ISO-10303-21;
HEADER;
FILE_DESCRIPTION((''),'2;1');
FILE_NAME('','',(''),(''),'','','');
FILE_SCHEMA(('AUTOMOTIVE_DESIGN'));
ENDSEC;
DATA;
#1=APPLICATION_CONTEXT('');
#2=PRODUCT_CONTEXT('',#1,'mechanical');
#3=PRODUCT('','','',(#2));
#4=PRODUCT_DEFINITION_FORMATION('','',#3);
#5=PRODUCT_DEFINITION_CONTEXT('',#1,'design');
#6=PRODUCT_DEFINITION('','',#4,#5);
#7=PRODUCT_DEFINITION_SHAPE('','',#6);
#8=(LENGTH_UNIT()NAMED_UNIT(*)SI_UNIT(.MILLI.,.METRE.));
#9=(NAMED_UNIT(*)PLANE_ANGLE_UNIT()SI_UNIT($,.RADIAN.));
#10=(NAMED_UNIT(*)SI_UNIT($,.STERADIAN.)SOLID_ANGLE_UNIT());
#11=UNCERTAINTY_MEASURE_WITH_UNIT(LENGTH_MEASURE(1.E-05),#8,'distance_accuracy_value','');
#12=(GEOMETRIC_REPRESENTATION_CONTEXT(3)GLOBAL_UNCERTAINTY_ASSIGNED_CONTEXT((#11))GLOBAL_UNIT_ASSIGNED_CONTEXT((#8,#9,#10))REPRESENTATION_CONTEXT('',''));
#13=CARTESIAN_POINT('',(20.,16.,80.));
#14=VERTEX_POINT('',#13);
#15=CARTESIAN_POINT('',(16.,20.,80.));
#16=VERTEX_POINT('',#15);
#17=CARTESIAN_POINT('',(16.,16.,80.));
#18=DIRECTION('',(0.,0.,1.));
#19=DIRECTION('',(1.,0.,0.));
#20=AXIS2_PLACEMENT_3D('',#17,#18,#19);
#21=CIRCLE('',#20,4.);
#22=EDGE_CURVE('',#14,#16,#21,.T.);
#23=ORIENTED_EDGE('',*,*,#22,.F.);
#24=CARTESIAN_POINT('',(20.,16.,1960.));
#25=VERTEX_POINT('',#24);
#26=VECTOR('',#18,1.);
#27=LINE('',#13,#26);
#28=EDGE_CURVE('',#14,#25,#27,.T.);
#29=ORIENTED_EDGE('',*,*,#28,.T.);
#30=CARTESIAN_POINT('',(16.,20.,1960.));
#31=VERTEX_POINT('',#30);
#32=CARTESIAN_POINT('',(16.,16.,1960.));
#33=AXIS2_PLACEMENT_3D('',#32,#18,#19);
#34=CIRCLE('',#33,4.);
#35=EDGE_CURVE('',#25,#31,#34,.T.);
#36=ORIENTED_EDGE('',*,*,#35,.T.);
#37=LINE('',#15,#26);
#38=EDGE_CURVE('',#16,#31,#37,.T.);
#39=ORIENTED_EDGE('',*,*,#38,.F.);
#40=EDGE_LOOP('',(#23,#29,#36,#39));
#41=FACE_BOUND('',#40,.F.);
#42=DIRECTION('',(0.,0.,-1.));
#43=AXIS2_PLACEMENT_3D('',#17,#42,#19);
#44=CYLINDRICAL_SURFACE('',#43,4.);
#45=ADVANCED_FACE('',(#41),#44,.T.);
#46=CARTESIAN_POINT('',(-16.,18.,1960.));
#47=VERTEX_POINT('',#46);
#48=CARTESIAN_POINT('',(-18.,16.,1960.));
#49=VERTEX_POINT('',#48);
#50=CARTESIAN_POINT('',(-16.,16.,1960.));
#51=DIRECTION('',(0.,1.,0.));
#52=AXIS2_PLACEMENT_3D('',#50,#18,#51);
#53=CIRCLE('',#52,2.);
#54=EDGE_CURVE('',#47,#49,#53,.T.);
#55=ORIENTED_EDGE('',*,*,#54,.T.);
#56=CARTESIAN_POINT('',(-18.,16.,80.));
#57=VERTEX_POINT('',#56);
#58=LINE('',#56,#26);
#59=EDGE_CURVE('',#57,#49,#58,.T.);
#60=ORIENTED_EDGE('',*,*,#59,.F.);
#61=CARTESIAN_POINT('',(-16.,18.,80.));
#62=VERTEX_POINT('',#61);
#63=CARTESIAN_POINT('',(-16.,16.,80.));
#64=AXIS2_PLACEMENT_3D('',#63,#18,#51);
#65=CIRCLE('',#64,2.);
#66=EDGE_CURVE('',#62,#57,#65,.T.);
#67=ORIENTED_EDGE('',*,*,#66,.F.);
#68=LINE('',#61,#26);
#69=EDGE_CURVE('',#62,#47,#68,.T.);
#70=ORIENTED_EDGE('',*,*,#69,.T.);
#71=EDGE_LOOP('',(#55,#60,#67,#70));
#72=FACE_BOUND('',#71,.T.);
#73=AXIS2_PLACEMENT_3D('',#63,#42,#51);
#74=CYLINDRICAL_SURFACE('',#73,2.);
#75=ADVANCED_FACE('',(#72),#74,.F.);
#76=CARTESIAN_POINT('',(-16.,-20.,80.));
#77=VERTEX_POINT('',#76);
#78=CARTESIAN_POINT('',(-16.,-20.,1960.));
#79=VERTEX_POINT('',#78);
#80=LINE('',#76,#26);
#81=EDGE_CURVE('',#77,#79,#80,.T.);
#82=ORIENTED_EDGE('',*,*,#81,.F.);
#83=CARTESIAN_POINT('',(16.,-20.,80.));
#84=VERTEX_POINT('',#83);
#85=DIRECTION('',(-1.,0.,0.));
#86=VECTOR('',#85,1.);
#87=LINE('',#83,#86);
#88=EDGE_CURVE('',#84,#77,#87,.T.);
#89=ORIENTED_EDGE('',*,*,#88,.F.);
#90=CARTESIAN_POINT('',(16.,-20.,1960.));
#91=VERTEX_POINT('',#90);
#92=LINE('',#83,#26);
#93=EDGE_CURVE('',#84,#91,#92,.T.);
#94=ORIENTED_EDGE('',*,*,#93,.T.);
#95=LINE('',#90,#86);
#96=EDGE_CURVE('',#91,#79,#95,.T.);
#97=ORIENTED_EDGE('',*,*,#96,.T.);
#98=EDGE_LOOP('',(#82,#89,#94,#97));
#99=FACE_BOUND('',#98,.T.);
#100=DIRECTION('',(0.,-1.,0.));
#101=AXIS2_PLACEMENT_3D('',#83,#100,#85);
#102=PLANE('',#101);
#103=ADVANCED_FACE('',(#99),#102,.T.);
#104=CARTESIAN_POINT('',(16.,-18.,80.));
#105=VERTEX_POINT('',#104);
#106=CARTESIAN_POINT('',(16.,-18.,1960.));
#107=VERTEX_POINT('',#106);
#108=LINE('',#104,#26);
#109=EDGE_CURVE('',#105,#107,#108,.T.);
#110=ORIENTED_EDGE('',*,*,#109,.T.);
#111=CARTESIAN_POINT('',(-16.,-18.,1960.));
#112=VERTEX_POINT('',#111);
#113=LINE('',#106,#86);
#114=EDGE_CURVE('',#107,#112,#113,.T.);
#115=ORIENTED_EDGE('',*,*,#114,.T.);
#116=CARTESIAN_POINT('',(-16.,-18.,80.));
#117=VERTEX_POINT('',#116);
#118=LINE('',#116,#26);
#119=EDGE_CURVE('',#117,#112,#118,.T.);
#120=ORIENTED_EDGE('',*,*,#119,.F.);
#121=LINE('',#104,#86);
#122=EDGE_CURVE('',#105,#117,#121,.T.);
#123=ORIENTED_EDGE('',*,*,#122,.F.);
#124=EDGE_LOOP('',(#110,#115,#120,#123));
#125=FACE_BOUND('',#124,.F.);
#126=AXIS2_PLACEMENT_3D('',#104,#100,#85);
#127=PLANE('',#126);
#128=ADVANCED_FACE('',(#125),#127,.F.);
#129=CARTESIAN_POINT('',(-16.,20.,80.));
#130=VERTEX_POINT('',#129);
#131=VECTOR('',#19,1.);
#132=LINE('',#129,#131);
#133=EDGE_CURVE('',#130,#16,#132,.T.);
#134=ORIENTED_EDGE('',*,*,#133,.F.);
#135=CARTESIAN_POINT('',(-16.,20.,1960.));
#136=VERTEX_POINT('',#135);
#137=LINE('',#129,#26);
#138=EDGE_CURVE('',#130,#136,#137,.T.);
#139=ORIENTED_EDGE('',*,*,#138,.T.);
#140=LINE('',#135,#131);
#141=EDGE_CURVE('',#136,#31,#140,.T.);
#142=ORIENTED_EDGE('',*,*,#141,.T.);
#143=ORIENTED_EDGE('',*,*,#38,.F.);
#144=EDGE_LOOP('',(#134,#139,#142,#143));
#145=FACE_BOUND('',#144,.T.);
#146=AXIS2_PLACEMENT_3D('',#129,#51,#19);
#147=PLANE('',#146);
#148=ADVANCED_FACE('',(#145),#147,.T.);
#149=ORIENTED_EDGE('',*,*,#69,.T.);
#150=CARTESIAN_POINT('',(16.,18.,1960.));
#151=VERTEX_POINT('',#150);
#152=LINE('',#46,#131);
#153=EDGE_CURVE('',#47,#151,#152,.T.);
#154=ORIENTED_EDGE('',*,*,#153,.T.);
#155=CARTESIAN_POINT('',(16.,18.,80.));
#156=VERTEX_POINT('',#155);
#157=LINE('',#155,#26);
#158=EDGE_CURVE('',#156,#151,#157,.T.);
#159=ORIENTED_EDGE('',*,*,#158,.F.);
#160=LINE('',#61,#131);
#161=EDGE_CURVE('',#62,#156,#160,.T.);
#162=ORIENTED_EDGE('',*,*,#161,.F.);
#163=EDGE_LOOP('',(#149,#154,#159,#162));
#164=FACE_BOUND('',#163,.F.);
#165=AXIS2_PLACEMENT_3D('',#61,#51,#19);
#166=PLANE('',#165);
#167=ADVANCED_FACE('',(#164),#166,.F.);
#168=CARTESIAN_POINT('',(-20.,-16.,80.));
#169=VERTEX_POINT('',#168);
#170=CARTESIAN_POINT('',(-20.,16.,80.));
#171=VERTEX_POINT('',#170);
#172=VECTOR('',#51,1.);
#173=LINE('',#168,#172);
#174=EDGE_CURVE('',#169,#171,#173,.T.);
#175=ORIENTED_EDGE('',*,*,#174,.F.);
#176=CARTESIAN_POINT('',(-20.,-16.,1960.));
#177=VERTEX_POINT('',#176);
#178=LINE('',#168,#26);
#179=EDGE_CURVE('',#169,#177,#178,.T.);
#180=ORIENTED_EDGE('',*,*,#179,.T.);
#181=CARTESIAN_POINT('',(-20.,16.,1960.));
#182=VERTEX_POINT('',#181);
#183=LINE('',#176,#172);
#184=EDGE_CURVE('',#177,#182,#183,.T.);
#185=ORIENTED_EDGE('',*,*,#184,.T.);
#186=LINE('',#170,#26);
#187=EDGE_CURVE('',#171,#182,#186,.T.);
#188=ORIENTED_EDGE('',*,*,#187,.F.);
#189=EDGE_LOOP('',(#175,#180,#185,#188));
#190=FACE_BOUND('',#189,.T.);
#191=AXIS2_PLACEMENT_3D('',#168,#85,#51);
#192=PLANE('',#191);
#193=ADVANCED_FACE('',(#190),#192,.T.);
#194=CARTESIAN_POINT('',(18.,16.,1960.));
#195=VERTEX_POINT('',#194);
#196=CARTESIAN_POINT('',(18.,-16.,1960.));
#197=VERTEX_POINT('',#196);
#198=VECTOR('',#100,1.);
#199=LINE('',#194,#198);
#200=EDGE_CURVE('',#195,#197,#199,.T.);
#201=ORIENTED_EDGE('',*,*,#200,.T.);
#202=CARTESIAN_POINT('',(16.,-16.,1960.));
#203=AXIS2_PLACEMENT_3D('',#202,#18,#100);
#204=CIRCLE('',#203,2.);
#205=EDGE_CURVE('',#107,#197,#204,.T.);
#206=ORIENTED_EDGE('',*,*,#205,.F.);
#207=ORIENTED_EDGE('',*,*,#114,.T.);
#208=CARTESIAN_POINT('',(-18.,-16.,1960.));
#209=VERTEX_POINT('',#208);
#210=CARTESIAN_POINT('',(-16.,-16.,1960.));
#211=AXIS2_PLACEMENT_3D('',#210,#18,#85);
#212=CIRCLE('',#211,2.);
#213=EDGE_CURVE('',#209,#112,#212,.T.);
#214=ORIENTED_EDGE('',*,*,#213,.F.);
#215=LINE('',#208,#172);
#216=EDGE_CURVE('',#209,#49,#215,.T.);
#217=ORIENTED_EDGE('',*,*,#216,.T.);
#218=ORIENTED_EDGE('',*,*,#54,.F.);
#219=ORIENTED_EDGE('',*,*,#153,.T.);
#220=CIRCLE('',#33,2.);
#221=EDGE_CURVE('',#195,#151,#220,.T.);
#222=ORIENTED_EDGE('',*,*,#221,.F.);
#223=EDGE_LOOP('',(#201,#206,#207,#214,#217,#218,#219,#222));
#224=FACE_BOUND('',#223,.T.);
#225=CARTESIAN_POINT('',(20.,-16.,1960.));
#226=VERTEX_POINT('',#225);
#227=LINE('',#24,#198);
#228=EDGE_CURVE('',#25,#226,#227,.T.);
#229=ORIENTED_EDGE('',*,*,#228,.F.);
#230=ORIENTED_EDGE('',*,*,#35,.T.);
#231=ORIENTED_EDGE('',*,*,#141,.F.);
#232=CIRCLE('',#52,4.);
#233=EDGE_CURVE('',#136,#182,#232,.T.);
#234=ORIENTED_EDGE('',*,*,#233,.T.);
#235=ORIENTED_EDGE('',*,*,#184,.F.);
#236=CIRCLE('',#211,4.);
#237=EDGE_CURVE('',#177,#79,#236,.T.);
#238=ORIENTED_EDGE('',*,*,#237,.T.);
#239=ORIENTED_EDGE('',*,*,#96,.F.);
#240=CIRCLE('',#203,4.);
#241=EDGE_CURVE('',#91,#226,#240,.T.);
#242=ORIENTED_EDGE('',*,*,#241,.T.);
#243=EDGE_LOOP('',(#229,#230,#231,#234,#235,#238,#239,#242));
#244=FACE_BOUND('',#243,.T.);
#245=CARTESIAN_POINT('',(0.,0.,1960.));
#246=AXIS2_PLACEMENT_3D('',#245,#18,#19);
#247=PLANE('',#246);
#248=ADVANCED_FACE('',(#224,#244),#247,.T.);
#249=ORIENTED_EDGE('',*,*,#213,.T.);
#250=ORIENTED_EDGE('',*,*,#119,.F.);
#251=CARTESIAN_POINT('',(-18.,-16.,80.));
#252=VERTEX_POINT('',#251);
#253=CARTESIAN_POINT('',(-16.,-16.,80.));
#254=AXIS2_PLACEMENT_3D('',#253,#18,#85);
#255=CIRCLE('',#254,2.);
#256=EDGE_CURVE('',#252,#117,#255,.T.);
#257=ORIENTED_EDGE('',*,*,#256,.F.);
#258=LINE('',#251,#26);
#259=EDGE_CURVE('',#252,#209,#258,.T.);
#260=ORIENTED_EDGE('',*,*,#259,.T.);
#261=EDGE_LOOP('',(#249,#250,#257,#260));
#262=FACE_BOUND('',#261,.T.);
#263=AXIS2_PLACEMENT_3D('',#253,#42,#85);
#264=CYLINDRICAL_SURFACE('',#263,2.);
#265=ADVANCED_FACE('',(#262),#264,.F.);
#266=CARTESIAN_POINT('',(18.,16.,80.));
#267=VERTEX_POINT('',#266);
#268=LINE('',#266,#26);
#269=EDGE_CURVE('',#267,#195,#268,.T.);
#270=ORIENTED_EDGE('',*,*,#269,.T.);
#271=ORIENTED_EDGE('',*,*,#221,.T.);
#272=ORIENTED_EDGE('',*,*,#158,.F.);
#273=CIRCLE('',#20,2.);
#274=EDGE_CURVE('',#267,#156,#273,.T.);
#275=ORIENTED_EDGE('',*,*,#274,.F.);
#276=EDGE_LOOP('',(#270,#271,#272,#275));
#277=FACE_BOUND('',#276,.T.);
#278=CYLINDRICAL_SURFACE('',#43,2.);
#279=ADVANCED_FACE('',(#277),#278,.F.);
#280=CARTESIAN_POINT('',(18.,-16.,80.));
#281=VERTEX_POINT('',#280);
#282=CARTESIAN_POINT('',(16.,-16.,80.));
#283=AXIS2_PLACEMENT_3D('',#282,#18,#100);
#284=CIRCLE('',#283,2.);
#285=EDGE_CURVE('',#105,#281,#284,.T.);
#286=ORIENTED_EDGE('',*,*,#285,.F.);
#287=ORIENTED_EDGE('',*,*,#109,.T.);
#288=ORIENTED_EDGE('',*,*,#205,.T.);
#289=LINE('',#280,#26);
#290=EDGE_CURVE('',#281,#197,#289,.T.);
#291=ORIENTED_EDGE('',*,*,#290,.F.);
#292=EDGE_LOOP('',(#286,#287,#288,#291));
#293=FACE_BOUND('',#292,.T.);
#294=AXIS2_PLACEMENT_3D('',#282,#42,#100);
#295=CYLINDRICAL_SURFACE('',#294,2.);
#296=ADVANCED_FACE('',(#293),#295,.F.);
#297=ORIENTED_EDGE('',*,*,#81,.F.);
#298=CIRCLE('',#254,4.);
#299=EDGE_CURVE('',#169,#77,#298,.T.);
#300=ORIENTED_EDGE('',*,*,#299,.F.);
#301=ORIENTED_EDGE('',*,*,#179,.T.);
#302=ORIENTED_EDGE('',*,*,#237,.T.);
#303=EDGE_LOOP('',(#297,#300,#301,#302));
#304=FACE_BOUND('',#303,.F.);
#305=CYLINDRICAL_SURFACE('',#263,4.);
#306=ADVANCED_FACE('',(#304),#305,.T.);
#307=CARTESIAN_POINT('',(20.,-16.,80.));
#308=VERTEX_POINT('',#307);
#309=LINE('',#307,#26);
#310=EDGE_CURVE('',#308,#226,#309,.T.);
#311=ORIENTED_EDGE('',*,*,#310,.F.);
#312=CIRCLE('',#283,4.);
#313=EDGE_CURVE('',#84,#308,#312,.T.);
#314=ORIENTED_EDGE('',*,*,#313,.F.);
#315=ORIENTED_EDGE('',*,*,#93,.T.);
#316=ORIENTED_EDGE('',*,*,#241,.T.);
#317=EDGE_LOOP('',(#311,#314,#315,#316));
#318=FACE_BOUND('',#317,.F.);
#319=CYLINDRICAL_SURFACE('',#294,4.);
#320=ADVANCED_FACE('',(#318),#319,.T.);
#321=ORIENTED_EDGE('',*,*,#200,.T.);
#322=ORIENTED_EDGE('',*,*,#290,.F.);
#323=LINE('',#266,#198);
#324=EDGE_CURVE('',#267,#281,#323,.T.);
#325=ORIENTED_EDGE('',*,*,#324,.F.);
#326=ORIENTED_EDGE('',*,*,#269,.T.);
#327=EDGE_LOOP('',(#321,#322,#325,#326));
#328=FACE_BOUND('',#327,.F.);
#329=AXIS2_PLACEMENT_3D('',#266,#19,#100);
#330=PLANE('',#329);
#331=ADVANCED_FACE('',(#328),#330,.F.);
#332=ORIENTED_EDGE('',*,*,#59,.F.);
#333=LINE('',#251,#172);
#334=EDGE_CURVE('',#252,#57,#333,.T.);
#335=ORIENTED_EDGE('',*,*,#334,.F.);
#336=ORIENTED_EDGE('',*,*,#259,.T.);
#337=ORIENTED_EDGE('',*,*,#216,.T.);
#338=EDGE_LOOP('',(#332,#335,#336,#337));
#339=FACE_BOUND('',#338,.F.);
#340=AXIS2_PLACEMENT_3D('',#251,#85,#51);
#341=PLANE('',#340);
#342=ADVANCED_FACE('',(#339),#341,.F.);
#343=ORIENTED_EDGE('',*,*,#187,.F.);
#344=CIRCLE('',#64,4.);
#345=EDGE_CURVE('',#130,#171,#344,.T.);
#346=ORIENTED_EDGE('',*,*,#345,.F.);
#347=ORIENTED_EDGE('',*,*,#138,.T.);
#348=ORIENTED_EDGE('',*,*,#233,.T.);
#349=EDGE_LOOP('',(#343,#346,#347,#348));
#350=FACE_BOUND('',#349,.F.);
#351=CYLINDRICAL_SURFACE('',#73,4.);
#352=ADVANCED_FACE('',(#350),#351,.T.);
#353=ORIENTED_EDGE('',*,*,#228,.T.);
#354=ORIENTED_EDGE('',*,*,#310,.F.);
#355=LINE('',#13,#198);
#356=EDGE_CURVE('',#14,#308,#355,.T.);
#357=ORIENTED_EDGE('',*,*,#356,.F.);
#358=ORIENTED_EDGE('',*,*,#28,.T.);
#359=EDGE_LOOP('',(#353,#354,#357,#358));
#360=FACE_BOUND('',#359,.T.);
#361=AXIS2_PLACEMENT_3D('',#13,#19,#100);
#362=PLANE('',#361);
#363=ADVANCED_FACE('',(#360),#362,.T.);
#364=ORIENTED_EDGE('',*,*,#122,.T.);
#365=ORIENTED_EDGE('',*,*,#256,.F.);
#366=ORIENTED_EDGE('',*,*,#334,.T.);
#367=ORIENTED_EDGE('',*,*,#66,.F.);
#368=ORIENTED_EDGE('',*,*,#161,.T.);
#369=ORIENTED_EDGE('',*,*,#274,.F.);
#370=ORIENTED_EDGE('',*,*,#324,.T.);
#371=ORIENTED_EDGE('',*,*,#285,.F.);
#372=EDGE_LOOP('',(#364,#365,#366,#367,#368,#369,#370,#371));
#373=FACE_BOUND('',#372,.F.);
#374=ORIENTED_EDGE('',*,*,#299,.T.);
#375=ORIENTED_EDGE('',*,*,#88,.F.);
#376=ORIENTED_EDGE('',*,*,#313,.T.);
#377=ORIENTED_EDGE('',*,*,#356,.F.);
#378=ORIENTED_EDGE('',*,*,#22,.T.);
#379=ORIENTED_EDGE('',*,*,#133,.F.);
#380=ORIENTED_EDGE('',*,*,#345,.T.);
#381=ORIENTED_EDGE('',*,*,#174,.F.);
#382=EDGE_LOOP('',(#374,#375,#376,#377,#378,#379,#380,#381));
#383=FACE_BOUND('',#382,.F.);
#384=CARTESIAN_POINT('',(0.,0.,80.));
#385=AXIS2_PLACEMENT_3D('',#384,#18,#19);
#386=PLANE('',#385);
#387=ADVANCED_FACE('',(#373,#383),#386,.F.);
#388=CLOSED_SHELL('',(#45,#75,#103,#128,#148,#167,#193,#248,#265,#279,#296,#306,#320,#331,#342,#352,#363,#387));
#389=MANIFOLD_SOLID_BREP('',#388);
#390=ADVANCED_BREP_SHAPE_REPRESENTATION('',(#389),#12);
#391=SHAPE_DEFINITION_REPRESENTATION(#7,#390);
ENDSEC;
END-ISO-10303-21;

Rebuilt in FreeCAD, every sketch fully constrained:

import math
import FreeCAD as App
import Part
import Sketcher

doc = App.newDocument("Part")
body = doc.addObject("PartDesign::Body", "Body")

# Sketch on XY plane
sketch1 = body.newObject("Sketcher::SketchObject", "Sketch")
sketch1.AttachmentSupport = (doc.getObject("XY_Plane"), [""])
sketch1.MapMode = "FlatFace"
sketch1.AttachmentOffset = App.Placement(App.Vector(0, 0, 80), App.Rotation())
sketch1.addGeometry(Part.LineSegment(App.Vector(-20, 16, 0), App.Vector(-20, -16, 0)), False)
sketch1.addGeometry(Part.ArcOfCircle(Part.Circle(App.Vector(-16, -16, 0), App.Vector(0, 0, 1), 4), math.radians(180), math.radians(270)), False)
sketch1.addGeometry(Part.LineSegment(App.Vector(-16, -20, 0), App.Vector(16, -20, 0)), False)
sketch1.addGeometry(Part.ArcOfCircle(Part.Circle(App.Vector(16, -16, 0), App.Vector(0, 0, 1), 4), math.radians(-90), math.radians(0)), False)
sketch1.addGeometry(Part.LineSegment(App.Vector(20, -16, 0), App.Vector(20, 16, 0)), False)
sketch1.addGeometry(Part.ArcOfCircle(Part.Circle(App.Vector(16, 16, 0), App.Vector(0, 0, 1), 4), math.radians(0), math.radians(90)), False)
sketch1.addGeometry(Part.LineSegment(App.Vector(16, 20, 0), App.Vector(-16, 20, 0)), False)
sketch1.addGeometry(Part.ArcOfCircle(Part.Circle(App.Vector(-16, 16, 0), App.Vector(0, 0, 1), 4), math.radians(90), math.radians(180)), False)
sketch1.addGeometry(Part.ArcOfCircle(Part.Circle(App.Vector(-16, 16, 0), App.Vector(0, 0, 1), 2), math.radians(90), math.radians(180)), False)
sketch1.addGeometry(Part.LineSegment(App.Vector(-16, 18, 0), App.Vector(16, 18, 0)), False)
sketch1.addGeometry(Part.ArcOfCircle(Part.Circle(App.Vector(16, 16, 0), App.Vector(0, 0, 1), 2), math.radians(0), math.radians(90)), False)
sketch1.addGeometry(Part.LineSegment(App.Vector(18, 16, 0), App.Vector(18, -16, 0)), False)
sketch1.addGeometry(Part.ArcOfCircle(Part.Circle(App.Vector(16, -16, 0), App.Vector(0, 0, 1), 2), math.radians(-90), math.radians(0)), False)
sketch1.addGeometry(Part.LineSegment(App.Vector(16, -18, 0), App.Vector(-16, -18, 0)), False)
sketch1.addGeometry(Part.ArcOfCircle(Part.Circle(App.Vector(-16, -16, 0), App.Vector(0, 0, 1), 2), math.radians(180), math.radians(270)), False)
sketch1.addGeometry(Part.LineSegment(App.Vector(-18, -16, 0), App.Vector(-18, 16, 0)), False)
sketch1.addConstraint(Sketcher.Constraint("Tangent", 0, 2, 1, 1))
sketch1.addConstraint(Sketcher.Constraint("Tangent", 1, 2, 2, 1))
sketch1.addConstraint(Sketcher.Constraint("Tangent", 2, 2, 3, 1))
sketch1.addConstraint(Sketcher.Constraint("Tangent", 3, 2, 4, 1))
sketch1.addConstraint(Sketcher.Constraint("Tangent", 4, 2, 5, 1))
sketch1.addConstraint(Sketcher.Constraint("Tangent", 5, 2, 6, 1))
sketch1.addConstraint(Sketcher.Constraint("Tangent", 6, 2, 7, 1))
sketch1.addConstraint(Sketcher.Constraint("Tangent", 7, 2, 0, 1))
sketch1.addConstraint(Sketcher.Constraint("Tangent", 8, 1, 9, 1))
sketch1.addConstraint(Sketcher.Constraint("Tangent", 9, 2, 10, 2))
sketch1.addConstraint(Sketcher.Constraint("Tangent", 10, 1, 11, 1))
sketch1.addConstraint(Sketcher.Constraint("Tangent", 11, 2, 12, 2))
sketch1.addConstraint(Sketcher.Constraint("Tangent", 12, 1, 13, 1))
sketch1.addConstraint(Sketcher.Constraint("Tangent", 13, 2, 14, 2))
sketch1.addConstraint(Sketcher.Constraint("Tangent", 14, 1, 15, 1))
sketch1.addConstraint(Sketcher.Constraint("Tangent", 15, 2, 8, 2))
sketch1.addConstraint(Sketcher.Constraint("Vertical", 0))
sketch1.addConstraint(Sketcher.Constraint("Horizontal", 2))
sketch1.addConstraint(Sketcher.Constraint("Vertical", 4))
sketch1.addConstraint(Sketcher.Constraint("Horizontal", 6))
sketch1.addConstraint(Sketcher.Constraint("Horizontal", 9))
sketch1.addConstraint(Sketcher.Constraint("Vertical", 11))
sketch1.addConstraint(Sketcher.Constraint("Horizontal", 13))
sketch1.addConstraint(Sketcher.Constraint("Vertical", 15))
sketch1.addConstraint(Sketcher.Constraint("Coincident", 8, 3, 7, 3))
sketch1.addConstraint(Sketcher.Constraint("Coincident", 10, 3, 5, 3))
sketch1.addConstraint(Sketcher.Constraint("Coincident", 12, 3, 3, 3))
sketch1.addConstraint(Sketcher.Constraint("Equal", 1, 3))
sketch1.addConstraint(Sketcher.Constraint("Equal", 3, 5))
sketch1.addConstraint(Sketcher.Constraint("Equal", 5, 7))
sketch1.addConstraint(Sketcher.Constraint("Equal", 12, 14))
sketch1.addConstraint(Sketcher.Constraint("Symmetric", 1, 3, 5, 3, -1, 1))
sketch1.addConstraint(Sketcher.Constraint("Equal", 13, 0))
sketch1.addConstraint(Sketcher.Constraint("Radius", 1, 4.0))
sketch1.addConstraint(Sketcher.Constraint("Radius", 8, 2.0))
sketch1.addConstraint(Sketcher.Constraint("DistanceX", 0, 2, -1, 1, 20.0))
pad1 = body.newObject("PartDesign::Pad", "Pad")
pad1.Profile = sketch1
pad1.Length = 1880

doc.recompute()
